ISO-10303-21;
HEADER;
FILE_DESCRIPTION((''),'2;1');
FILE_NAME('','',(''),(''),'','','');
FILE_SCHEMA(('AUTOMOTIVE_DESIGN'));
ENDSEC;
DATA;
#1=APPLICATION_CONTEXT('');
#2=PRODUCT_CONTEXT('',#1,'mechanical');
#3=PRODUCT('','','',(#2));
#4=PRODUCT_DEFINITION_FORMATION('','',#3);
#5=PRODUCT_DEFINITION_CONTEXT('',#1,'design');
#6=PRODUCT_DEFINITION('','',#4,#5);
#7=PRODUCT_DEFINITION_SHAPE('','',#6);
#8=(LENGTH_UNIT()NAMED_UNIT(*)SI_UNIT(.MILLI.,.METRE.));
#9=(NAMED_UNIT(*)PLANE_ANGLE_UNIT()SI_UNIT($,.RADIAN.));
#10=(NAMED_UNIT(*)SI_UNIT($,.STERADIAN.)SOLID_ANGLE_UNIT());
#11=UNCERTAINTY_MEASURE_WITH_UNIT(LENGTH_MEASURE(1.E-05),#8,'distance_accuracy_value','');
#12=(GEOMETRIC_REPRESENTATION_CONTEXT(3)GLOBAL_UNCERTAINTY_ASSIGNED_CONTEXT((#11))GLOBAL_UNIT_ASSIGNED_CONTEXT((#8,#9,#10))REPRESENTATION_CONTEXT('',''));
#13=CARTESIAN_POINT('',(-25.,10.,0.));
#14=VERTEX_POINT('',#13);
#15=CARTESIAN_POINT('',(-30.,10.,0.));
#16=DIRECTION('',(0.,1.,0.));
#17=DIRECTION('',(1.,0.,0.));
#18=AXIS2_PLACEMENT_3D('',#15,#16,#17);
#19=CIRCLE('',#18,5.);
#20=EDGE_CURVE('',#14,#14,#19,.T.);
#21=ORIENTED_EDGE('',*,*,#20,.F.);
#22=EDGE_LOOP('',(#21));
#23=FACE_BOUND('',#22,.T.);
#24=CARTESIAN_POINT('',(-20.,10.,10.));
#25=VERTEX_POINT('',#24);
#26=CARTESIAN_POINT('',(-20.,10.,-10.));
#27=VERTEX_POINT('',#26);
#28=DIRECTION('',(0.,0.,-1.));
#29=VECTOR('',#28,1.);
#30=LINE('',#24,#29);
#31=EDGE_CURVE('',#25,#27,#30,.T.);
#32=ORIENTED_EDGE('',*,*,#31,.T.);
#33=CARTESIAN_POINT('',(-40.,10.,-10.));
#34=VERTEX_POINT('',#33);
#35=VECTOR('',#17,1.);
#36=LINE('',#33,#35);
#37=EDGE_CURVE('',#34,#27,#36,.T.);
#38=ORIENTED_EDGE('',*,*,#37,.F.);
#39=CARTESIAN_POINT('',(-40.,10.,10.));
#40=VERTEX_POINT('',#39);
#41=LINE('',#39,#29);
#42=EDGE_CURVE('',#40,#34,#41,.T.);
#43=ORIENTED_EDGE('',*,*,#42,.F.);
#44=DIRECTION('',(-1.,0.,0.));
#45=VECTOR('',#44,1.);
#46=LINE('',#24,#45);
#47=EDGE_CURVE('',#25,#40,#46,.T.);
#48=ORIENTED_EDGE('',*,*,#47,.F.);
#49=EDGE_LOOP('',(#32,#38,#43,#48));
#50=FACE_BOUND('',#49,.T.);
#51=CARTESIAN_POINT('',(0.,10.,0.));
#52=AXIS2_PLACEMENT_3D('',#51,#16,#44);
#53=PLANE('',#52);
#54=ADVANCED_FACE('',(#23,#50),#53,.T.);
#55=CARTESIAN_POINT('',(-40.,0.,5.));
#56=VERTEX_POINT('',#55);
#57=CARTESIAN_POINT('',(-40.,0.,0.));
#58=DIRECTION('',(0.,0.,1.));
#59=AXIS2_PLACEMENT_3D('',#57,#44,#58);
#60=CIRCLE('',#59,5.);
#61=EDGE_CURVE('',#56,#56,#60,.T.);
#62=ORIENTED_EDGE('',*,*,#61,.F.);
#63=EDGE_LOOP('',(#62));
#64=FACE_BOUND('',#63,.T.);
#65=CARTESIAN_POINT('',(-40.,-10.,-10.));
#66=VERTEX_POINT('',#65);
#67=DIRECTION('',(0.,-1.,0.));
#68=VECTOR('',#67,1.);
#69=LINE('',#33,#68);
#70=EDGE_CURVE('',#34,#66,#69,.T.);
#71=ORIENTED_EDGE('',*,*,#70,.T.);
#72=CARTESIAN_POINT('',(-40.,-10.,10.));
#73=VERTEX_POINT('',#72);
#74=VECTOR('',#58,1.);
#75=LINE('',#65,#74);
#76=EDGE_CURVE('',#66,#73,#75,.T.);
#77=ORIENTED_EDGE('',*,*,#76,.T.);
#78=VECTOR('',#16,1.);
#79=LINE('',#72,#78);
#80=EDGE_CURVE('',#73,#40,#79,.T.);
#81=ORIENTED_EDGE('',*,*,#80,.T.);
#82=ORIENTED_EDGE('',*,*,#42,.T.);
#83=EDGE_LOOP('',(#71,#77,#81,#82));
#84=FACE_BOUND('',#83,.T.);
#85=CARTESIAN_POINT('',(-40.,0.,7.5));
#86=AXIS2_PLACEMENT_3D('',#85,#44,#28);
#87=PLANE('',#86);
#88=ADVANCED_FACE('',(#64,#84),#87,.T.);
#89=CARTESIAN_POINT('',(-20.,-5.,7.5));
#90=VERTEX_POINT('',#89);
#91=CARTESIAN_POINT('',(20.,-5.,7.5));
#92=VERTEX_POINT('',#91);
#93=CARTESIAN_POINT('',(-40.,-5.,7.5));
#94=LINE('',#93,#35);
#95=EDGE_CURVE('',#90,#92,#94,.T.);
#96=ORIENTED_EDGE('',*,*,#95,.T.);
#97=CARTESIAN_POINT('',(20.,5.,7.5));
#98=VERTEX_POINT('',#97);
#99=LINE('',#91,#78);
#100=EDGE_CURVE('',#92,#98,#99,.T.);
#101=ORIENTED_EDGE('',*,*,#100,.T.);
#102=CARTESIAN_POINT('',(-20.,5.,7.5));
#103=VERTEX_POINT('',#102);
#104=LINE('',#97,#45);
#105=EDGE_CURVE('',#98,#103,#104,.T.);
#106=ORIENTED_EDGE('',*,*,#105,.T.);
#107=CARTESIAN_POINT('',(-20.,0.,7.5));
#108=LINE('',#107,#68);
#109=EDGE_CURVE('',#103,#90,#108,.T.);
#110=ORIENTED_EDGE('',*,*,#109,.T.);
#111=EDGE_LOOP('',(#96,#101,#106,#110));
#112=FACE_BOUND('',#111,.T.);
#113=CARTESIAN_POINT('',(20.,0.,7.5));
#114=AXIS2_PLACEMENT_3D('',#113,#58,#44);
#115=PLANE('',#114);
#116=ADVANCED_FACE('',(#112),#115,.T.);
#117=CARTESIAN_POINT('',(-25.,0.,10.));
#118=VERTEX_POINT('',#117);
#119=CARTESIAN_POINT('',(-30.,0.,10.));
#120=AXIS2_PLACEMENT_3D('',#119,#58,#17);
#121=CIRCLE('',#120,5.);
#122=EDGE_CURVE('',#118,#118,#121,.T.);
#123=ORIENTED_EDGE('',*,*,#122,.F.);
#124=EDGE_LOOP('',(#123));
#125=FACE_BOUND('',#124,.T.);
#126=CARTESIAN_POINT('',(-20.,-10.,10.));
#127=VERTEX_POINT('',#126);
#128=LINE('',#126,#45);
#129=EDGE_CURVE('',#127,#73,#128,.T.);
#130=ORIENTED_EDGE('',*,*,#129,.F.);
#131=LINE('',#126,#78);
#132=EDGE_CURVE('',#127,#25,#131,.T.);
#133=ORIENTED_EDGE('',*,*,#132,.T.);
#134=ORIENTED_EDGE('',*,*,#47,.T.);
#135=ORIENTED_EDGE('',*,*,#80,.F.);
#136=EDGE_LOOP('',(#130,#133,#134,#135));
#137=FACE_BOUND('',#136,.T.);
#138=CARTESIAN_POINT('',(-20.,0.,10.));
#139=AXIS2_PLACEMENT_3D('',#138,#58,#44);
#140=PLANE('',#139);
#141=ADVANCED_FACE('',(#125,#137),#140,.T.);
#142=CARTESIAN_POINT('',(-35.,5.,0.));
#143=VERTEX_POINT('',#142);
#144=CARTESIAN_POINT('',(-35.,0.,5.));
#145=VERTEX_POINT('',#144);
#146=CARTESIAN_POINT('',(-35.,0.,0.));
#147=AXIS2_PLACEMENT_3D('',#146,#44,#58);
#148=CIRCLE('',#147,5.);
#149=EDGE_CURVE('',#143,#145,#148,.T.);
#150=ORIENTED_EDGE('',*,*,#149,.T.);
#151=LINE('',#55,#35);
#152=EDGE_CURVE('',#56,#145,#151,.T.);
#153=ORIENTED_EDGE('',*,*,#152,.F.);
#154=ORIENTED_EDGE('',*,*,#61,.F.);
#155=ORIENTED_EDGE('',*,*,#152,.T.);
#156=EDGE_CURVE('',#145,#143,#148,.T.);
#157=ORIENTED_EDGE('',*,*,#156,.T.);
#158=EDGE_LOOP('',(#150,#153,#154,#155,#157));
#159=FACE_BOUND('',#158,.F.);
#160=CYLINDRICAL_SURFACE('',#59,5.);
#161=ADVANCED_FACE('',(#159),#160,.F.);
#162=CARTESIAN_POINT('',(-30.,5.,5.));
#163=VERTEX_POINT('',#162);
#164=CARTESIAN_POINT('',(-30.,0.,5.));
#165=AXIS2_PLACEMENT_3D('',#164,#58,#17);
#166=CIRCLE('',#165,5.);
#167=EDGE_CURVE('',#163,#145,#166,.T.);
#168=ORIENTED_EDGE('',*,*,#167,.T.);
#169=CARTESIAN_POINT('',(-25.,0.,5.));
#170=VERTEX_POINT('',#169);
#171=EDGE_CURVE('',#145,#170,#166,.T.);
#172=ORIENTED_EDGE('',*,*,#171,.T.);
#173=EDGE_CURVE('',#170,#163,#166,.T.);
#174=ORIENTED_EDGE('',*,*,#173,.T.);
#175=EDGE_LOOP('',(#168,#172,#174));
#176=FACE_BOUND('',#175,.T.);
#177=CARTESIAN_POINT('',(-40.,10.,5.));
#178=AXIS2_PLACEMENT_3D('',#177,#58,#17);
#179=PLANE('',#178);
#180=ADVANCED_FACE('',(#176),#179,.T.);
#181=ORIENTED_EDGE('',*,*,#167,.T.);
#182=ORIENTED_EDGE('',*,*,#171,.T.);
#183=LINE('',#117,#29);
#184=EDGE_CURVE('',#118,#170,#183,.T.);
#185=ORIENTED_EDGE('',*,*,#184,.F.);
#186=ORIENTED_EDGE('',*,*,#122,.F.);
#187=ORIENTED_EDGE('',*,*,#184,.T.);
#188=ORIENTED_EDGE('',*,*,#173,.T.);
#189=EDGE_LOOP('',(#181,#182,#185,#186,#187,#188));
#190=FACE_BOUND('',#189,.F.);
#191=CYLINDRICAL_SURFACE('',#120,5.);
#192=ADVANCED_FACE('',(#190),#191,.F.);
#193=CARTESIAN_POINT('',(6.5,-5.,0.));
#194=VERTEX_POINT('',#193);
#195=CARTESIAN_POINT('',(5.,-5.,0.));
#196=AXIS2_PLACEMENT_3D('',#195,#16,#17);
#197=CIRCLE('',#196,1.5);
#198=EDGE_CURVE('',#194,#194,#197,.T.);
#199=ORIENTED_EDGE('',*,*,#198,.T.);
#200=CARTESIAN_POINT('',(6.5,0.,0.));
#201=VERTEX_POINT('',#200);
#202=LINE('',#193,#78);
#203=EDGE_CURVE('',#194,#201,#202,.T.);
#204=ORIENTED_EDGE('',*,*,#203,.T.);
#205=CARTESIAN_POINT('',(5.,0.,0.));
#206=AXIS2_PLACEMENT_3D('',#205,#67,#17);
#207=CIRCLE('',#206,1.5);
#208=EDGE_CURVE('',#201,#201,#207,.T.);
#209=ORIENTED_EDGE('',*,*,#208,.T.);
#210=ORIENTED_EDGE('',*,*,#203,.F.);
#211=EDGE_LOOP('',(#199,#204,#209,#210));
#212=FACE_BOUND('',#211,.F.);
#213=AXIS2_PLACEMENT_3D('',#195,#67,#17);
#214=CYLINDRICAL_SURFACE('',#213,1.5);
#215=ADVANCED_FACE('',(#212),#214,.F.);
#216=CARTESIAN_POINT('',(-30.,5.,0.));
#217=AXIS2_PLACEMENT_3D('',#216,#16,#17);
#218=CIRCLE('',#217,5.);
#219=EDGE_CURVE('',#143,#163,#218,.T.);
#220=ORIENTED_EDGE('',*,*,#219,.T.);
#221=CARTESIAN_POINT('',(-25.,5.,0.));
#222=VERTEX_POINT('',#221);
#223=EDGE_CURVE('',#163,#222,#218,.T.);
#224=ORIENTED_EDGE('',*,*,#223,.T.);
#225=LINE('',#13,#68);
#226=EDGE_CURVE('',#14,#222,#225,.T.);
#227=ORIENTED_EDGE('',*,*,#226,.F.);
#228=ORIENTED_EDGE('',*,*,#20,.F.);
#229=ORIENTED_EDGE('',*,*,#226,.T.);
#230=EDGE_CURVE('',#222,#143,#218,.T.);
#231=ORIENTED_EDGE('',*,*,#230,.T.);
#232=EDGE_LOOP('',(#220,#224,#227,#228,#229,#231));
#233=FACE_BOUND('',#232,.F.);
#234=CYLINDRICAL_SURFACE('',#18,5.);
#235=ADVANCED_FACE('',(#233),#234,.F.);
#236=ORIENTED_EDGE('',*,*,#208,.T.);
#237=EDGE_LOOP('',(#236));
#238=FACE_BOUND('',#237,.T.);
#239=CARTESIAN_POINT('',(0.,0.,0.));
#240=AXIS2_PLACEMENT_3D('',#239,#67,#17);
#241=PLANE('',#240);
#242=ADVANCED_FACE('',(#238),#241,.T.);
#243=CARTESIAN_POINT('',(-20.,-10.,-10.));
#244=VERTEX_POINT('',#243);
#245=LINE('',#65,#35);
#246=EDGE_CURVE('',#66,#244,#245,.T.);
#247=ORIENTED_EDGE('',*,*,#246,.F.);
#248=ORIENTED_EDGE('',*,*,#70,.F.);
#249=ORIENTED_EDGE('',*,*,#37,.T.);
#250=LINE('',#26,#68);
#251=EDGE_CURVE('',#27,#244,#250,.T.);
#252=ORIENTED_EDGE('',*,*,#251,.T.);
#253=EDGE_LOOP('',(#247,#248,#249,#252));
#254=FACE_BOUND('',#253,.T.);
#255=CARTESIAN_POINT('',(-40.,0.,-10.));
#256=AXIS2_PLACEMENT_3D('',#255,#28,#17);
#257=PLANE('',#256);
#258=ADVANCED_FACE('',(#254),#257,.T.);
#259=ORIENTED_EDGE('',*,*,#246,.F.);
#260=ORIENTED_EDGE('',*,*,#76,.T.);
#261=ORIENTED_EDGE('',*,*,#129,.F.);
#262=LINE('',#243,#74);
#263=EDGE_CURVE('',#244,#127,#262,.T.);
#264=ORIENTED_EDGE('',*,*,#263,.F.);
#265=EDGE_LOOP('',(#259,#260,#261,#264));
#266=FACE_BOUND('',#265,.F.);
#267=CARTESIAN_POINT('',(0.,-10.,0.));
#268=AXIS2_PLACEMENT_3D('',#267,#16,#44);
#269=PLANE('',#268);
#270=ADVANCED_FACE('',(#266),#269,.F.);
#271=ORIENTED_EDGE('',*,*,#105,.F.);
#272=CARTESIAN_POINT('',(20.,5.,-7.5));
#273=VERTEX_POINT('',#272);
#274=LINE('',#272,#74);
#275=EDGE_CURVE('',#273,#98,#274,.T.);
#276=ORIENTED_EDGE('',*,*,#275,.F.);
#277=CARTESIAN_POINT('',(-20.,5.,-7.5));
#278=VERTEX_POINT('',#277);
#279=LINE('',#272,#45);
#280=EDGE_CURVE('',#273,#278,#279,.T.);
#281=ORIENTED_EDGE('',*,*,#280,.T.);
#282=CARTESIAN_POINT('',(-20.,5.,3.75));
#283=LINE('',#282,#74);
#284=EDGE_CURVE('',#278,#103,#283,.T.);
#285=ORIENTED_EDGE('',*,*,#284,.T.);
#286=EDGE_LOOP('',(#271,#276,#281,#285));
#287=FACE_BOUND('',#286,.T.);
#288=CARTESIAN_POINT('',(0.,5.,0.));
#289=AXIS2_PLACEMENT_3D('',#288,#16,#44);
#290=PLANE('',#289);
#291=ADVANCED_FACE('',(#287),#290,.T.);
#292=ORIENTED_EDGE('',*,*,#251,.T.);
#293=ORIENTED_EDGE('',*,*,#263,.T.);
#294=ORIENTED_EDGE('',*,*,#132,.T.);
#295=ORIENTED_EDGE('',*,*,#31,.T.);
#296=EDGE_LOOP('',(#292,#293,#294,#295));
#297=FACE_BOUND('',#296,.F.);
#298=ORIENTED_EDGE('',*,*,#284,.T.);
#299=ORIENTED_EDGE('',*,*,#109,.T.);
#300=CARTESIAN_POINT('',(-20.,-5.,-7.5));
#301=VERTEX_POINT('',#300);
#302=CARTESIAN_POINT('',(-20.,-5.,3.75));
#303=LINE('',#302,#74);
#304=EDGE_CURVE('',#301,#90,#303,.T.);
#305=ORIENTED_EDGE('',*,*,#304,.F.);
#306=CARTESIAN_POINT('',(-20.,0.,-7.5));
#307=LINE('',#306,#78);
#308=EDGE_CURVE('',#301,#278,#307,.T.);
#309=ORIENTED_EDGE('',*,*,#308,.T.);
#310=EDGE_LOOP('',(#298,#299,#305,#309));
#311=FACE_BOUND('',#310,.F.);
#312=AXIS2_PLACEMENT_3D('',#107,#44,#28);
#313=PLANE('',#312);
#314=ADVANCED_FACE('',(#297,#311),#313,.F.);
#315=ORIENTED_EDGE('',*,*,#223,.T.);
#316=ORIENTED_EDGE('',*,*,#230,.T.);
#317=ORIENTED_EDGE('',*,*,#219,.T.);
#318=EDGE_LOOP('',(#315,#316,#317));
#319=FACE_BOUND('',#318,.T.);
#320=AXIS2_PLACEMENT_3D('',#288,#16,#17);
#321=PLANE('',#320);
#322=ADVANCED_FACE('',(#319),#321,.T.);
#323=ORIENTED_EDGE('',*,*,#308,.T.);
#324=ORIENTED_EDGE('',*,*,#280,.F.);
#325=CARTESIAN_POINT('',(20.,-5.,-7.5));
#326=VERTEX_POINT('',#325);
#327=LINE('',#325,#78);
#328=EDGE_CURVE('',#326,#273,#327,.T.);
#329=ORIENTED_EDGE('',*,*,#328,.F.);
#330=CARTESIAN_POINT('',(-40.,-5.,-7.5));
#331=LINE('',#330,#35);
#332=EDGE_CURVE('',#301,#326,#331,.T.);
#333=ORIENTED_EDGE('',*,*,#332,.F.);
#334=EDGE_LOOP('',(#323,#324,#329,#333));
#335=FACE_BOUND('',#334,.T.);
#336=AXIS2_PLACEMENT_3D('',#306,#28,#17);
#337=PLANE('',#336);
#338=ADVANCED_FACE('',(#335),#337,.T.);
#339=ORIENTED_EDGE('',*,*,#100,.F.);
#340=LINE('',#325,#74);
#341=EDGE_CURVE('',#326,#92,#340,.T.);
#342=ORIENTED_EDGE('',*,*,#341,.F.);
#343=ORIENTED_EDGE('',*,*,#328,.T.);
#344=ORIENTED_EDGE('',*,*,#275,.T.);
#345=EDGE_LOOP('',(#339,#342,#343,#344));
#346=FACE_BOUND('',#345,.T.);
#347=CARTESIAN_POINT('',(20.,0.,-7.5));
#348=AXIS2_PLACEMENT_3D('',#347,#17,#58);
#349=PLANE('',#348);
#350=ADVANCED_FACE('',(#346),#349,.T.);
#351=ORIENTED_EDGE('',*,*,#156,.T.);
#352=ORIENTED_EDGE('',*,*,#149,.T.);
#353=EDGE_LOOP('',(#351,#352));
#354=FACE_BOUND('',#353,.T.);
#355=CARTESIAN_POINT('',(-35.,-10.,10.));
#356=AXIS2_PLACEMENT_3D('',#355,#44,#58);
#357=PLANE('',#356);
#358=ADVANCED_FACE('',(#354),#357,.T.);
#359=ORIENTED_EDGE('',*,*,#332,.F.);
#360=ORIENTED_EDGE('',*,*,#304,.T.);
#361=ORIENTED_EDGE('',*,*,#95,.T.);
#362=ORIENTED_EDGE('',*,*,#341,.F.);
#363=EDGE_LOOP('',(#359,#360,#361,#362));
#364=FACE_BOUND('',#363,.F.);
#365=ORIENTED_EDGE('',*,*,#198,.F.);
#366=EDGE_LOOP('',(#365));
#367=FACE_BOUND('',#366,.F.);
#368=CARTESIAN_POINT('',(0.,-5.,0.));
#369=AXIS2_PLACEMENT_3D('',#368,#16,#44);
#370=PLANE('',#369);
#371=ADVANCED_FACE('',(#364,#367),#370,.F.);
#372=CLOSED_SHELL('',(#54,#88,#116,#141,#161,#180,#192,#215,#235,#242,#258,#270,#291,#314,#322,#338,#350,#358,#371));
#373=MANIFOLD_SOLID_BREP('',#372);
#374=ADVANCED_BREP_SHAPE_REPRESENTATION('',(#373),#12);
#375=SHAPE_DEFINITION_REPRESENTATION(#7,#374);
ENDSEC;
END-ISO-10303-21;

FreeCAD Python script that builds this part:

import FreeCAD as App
import Part
import Sketcher


def add_polygon(sketch, points):
    """Adds a closed chain of lines whose ends are joined by coincident constraints."""
    first, n = sketch.GeometryCount, len(points)
    for a, b in zip(points, points[1:] + points[:1]):
        sketch.addGeometry(Part.LineSegment(App.Vector(*a, 0), App.Vector(*b, 0)), False)
    for i in range(n):
        sketch.addConstraint(Sketcher.Constraint("Coincident", first + i, 2, first + (i + 1) % n, 1))

doc = App.newDocument("Part")
body = doc.addObject("PartDesign::Body", "Body")

# Sketch on XZ plane
sketch1 = body.newObject("Sketcher::SketchObject", "Sketch")
sketch1.AttachmentSupport = (doc.getObject("XZ_Plane"), [""])
sketch1.MapMode = "FlatFace"
add_polygon(sketch1, [(20, 8), (20, -8), (-40, -8), (-40, 8)])  # lines 0-3
sketch1.addConstraint([
    Sketcher.Constraint("Vertical", 0),
    Sketcher.Constraint("Horizontal", 1),
    Sketcher.Constraint("Vertical", 2),
    Sketcher.Constraint("Horizontal", 3),
    Sketcher.Constraint("DistanceY", 0, 2, 0, 1, 15.0),
    Sketcher.Constraint("DistanceX", -1, 1, 0, 2, 20.0),
    Sketcher.Constraint("DistanceX", 1, 2, -1, 1, 40.0),
    Sketcher.Constraint("DistanceY", 0, 2, -1, 1, 7.5),
])
pad1 = body.newObject("PartDesign::Pad", "Pad")
pad1.Profile = sketch1
pad1.Length = 10
pad1.Midplane = True

# Sketch on XZ plane
sketch2 = body.newObject("Sketcher::SketchObject", "Sketch001")
sketch2.AttachmentSupport = (doc.getObject("XZ_Plane"), [""])
sketch2.MapMode = "FlatFace"
add_polygon(sketch2, [(-40, 10), (-20, 10), (-20, -10), (-40, -10)])  # lines 0-3
sketch2.addConstraint([
    Sketcher.Constraint("Horizontal", 0),
    Sketcher.Constraint("Vertical", 1),
    Sketcher.Constraint("Horizontal", 2),
    Sketcher.Constraint("Vertical", 3),
    Sketcher.Constraint("Equal", 2, 1),
    Sketcher.Constraint("DistanceX", 0, 1, 0, 2, 20.0),
    Sketcher.Constraint("DistanceX", 0, 2, -1, 1, 20.0),
    Sketcher.Constraint("DistanceY", -1, 1, 0, 2, 10.0),
])
pad2 = body.newObject("PartDesign::Pad", "Pad001")
pad2.Profile = sketch2
pad2.Length = 20
pad2.Midplane = True

# Sketch on XZ plane
sketch3 = body.newObject("Sketcher::SketchObject", "Sketch002")
sketch3.AttachmentSupport = (doc.getObject("XZ_Plane"), [""])
sketch3.MapMode = "FlatFace"
sketch3.AttachmentOffset = App.Placement(App.Vector(0, 0, -10), App.Rotation())
sketch3.addGeometry(Part.Circle(App.Vector(-30, 0, 0), App.Vector(0, 0, 1), 5), False)
sketch3.addConstraint([
    Sketcher.Constraint("PointOnObject", 0, 3, -1),
    Sketcher.Constraint("Diameter", 0, 10.0),
    Sketcher.Constraint("DistanceX", 0, 3, -1, 1, 30.0),
])
pocket1 = body.newObject("PartDesign::Pocket", "Pocket")
pocket1.Profile = sketch3
pocket1.Length = 5
pocket1.Reversed = True

# Sketch on YZ plane
sketch4 = body.newObject("Sketcher::SketchObject", "Sketch003")
sketch4.AttachmentSupport = (doc.getObject("YZ_Plane"), [""])
sketch4.MapMode = "FlatFace"
sketch4.AttachmentOffset = App.Placement(App.Vector(0, 0, -40), App.Rotation())
sketch4.addGeometry(Part.Circle(App.Vector(0, 0, 0), App.Vector(0, 0, 1), 5), False)
sketch4.addConstraint([
    Sketcher.Constraint("Coincident", 0, 3, -1, 1),
    Sketcher.Constraint("Diameter", 0, 10.0),
])
pocket2 = body.newObject("PartDesign::Pocket", "Pocket001")
pocket2.Profile = sketch4
pocket2.Length = 5
pocket2.Reversed = True

# Sketch on XY plane
sketch5 = body.newObject("Sketcher::SketchObject", "Sketch004")
sketch5.AttachmentSupport = (doc.getObject("XY_Plane"), [""])
sketch5.MapMode = "FlatFace"
sketch5.AttachmentOffset = App.Placement(App.Vector(0, 0, 10), App.Rotation())
sketch5.addGeometry(Part.Circle(App.Vector(-30, 0, 0), App.Vector(0, 0, 1), 5), False)
sketch5.addConstraint([
    Sketcher.Constraint("PointOnObject", 0, 3, -1),
    Sketcher.Constraint("Diameter", 0, 10.0),
    Sketcher.Constraint("DistanceX", 0, 3, -1, 1, 30.0),
])
pocket3 = body.newObject("PartDesign::Pocket", "Pocket002")
pocket3.Profile = sketch5
pocket3.Length = 5

# Sketch on XZ plane
sketch6 = body.newObject("Sketcher::SketchObject", "Sketch005")
sketch6.AttachmentSupport = (doc.getObject("XZ_Plane"), [""])
sketch6.MapMode = "FlatFace"
sketch6.AttachmentOffset = App.Placement(App.Vector(0, 0, 5), App.Rotation())
sketch6.addGeometry(Part.Circle(App.Vector(5, 0, 0), App.Vector(0, 0, 1), 1.5), False)
sketch6.addConstraint([
    Sketcher.Constraint("PointOnObject", 0, 3, -1),
    Sketcher.Constraint("Diameter", 0, 3.0),
    Sketcher.Constraint("DistanceX", -1, 1, 0, 3, 5.0),
])
pocket4 = body.newObject("PartDesign::Pocket", "Pocket003")
pocket4.Profile = sketch6
pocket4.Length = 5

doc.recompute()
